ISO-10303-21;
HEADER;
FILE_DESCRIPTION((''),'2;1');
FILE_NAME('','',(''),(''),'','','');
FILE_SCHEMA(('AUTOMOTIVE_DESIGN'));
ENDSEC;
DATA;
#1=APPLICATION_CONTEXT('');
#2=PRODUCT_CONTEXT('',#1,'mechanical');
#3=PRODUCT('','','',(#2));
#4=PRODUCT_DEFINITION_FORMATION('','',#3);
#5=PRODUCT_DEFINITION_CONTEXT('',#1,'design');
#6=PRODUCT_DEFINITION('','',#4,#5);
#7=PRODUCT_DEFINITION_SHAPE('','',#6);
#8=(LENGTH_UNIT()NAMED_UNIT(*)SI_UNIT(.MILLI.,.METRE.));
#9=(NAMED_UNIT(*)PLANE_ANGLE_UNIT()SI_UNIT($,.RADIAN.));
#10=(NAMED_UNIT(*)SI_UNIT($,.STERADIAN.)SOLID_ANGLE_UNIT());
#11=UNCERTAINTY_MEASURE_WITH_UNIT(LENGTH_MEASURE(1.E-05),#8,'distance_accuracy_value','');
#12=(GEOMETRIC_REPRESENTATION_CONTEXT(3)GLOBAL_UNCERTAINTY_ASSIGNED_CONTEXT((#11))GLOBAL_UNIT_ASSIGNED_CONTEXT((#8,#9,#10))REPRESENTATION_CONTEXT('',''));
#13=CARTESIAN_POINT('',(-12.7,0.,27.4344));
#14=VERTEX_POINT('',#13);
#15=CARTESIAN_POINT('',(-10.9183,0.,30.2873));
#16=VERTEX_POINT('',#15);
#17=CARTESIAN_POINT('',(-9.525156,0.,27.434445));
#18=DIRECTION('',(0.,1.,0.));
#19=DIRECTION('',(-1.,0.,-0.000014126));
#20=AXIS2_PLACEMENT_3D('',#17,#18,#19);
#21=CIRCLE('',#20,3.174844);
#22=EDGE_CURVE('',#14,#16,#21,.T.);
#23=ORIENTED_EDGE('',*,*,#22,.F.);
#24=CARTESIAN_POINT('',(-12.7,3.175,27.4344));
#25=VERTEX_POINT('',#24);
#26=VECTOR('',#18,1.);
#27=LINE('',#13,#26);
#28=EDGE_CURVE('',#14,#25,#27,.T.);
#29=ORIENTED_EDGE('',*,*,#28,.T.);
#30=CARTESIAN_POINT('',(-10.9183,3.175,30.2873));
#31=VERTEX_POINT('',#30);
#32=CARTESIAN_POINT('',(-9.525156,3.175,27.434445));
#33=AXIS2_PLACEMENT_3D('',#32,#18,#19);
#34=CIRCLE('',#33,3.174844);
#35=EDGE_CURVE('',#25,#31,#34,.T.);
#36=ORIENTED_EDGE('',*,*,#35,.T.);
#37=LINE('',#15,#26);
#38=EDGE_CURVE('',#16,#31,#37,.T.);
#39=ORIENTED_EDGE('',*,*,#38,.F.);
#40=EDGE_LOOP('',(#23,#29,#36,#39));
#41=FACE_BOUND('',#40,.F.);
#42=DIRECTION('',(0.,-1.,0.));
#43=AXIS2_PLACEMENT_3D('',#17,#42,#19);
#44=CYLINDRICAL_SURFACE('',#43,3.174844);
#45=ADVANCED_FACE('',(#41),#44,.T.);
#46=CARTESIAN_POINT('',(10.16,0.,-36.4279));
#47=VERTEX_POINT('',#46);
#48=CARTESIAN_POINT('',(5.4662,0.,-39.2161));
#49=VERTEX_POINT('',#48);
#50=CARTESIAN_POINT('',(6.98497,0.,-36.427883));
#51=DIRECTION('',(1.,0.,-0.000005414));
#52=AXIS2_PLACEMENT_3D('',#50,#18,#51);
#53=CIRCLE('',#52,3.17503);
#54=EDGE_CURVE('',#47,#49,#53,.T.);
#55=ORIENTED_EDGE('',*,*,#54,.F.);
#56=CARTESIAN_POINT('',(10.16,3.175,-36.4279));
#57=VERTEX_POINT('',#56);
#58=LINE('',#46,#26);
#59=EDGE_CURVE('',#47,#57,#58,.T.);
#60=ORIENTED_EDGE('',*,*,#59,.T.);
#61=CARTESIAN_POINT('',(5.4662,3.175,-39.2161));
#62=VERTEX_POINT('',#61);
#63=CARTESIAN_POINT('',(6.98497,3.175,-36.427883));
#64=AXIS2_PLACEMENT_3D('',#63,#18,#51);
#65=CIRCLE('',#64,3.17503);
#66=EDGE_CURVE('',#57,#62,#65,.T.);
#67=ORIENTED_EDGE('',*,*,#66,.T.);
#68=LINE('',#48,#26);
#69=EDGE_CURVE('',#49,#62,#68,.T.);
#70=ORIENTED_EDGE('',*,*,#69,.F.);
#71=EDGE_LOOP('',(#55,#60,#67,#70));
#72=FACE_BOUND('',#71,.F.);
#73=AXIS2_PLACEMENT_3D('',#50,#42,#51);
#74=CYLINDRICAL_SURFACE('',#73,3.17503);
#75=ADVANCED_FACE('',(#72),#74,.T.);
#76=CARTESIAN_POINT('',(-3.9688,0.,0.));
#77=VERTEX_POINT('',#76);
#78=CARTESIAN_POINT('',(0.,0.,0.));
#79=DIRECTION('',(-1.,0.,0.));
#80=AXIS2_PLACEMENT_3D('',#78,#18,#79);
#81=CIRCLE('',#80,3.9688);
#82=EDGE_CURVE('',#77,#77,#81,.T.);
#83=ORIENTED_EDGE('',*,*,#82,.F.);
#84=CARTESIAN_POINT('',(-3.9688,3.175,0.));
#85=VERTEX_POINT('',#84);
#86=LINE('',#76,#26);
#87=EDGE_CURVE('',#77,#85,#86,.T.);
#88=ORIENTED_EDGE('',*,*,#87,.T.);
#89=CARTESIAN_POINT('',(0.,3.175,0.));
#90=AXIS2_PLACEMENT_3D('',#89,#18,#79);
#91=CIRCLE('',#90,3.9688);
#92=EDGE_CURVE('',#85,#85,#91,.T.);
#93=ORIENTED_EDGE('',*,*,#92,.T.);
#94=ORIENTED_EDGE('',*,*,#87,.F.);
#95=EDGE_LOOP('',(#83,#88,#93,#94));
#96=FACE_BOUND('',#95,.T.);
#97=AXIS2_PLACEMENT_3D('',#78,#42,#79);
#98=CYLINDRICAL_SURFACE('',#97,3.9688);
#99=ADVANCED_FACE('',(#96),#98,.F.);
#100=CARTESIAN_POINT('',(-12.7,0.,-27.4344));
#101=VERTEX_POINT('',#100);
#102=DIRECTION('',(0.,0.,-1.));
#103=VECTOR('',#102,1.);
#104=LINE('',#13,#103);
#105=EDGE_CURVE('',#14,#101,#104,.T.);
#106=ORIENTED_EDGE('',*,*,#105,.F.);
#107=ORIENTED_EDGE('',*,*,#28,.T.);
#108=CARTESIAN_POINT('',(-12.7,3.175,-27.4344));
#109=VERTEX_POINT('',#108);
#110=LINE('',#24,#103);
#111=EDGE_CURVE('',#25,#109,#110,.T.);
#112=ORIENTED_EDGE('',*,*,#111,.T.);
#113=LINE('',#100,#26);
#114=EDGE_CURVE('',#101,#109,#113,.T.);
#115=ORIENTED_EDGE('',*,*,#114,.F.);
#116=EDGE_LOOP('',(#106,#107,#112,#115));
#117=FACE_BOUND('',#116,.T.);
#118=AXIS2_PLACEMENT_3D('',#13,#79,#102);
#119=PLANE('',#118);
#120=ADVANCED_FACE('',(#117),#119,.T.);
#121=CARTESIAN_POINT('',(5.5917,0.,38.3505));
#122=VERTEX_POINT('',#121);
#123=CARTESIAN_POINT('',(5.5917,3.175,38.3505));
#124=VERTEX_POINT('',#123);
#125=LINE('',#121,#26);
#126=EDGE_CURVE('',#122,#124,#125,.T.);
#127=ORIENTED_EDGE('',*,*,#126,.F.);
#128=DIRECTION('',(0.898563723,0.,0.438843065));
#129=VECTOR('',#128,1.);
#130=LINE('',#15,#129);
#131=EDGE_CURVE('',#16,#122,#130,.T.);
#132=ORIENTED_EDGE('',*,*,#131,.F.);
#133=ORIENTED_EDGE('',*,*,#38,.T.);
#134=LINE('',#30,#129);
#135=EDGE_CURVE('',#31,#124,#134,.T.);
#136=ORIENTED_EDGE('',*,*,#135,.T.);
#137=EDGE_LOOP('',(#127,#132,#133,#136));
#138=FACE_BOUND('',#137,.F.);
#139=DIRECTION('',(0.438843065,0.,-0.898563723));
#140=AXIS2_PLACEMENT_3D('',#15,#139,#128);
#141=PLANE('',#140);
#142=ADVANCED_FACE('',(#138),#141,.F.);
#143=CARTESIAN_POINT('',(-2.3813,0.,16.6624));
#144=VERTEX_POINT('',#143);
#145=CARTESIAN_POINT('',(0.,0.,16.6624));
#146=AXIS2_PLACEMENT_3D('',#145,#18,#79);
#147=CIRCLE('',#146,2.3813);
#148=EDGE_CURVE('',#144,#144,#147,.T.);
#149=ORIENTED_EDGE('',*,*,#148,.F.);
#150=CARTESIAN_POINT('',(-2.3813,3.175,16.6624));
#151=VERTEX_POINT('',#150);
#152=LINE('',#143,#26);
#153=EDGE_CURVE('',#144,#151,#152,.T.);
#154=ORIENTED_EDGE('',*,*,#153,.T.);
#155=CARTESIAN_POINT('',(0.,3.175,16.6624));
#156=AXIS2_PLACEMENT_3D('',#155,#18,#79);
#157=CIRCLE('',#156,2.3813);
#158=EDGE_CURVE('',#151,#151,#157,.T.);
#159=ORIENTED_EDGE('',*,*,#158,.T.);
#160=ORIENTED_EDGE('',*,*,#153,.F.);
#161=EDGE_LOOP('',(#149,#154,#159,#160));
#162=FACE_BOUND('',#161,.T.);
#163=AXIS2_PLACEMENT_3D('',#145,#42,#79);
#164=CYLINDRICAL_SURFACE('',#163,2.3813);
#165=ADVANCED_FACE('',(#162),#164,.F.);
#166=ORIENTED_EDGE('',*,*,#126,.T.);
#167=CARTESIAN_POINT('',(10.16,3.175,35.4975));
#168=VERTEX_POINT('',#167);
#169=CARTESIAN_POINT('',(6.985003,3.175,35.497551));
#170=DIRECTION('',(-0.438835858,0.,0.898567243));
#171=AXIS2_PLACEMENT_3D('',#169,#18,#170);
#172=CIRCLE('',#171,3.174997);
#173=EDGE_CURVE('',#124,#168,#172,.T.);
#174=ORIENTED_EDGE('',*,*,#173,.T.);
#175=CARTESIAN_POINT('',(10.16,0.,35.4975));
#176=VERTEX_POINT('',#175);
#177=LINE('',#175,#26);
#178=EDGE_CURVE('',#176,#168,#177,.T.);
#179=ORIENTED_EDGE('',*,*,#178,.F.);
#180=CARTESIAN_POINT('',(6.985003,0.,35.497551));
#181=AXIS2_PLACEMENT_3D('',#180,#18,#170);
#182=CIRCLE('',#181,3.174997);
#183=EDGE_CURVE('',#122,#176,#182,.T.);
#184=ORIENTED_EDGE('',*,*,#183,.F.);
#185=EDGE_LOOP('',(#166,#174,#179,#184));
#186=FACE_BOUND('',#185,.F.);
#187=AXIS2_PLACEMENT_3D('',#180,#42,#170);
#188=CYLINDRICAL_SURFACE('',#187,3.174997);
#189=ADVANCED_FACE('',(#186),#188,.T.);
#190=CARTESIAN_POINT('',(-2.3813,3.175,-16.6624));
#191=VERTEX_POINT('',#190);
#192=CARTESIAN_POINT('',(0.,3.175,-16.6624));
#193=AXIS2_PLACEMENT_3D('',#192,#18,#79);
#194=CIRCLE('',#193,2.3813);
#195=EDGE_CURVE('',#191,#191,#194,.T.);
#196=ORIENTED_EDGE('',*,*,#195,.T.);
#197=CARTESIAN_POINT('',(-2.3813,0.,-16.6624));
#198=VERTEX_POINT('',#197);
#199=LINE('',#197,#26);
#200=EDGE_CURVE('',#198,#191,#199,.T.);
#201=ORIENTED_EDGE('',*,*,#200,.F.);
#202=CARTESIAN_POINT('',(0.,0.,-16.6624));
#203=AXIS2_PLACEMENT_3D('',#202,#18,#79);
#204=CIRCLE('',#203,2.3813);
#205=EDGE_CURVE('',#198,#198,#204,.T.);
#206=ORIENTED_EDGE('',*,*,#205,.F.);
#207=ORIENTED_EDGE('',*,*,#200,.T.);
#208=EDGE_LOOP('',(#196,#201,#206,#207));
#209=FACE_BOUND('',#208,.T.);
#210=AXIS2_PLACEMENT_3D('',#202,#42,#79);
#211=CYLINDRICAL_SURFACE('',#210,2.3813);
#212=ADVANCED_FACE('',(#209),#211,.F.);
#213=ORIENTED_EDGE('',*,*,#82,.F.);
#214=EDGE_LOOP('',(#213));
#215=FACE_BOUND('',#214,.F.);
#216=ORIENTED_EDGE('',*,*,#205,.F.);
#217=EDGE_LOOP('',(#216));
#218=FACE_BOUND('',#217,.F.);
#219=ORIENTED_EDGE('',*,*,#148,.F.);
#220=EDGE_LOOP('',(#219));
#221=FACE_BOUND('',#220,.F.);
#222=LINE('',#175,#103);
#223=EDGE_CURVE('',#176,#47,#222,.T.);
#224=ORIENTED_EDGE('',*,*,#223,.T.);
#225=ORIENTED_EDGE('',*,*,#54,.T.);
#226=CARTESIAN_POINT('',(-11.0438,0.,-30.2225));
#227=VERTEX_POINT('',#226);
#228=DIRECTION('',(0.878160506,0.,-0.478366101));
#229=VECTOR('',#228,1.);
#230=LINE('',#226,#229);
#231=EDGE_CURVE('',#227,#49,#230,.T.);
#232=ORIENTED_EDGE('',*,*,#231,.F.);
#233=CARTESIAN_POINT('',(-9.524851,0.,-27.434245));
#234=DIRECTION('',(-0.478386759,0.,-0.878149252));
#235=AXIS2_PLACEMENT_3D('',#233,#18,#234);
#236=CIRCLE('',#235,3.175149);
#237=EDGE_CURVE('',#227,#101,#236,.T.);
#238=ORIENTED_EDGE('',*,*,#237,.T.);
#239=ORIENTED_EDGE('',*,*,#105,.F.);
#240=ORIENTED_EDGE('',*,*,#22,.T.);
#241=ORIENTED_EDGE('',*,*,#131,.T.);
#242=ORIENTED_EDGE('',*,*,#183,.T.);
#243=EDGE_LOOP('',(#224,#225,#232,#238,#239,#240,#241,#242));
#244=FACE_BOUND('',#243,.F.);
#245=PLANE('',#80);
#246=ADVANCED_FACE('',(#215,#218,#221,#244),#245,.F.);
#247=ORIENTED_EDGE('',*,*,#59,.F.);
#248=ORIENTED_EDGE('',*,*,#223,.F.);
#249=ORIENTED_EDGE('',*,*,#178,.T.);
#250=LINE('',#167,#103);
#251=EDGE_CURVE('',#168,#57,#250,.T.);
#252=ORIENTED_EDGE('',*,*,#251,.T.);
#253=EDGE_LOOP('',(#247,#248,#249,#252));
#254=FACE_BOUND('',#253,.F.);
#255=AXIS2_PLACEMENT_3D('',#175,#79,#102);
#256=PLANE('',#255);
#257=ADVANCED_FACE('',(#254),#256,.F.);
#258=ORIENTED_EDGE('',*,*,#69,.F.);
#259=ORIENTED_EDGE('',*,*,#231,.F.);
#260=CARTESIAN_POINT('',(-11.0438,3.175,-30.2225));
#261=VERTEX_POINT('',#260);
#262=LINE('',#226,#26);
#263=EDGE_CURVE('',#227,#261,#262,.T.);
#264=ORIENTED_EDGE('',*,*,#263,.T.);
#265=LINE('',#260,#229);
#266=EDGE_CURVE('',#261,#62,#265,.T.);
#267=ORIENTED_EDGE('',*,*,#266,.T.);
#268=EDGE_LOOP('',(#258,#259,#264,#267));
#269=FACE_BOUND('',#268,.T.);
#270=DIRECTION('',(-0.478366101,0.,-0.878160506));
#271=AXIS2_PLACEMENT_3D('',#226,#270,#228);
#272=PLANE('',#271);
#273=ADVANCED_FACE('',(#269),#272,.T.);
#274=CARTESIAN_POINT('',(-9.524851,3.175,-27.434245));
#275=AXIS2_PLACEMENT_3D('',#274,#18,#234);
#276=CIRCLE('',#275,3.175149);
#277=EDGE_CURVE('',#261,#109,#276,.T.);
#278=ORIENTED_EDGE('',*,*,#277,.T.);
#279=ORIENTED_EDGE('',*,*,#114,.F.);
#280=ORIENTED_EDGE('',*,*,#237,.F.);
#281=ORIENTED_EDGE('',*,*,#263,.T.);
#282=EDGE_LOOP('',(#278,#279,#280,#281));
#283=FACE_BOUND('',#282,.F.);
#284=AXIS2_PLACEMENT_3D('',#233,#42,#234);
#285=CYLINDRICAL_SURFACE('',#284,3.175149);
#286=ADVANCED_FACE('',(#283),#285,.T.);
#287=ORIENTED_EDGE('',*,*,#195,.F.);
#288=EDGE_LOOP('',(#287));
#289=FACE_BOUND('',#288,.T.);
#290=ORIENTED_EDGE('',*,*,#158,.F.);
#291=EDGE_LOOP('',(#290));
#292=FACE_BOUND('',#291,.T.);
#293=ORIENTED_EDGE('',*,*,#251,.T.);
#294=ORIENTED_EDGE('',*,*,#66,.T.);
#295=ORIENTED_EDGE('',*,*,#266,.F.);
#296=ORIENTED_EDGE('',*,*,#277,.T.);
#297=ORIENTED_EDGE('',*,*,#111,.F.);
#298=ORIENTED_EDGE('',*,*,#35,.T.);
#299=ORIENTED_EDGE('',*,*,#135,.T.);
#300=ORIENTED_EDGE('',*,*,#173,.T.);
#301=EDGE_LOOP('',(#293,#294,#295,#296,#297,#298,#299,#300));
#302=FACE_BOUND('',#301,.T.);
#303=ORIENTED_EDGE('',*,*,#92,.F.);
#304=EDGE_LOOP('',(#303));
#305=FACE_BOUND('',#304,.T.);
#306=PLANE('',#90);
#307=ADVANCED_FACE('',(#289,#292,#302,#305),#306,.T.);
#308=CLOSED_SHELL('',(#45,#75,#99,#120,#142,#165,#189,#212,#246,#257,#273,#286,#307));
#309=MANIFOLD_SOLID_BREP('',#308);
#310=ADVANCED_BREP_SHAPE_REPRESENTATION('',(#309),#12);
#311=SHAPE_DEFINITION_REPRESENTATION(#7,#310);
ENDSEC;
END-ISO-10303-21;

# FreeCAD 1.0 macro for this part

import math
import FreeCAD as App
import Part
import Sketcher
Q = App.Units.Quantity

doc = App.newDocument("Part")
body = doc.addObject("PartDesign::Body", "Body")

sketch1 = body.newObject("Sketcher::SketchObject", "Sketch")
sketch1.AttachmentSupport = (doc.getObject("XZ_Plane"), [""])
sketch1.MapMode = "FlatFace"
sketch1.addGeometry([
    Part.LineSegment(App.Vector(-12.7, -27.4344, 0), App.Vector(-12.7, 27.4344, 0)),
    Part.ArcOfCircle(Part.Circle(App.Vector(-9.525, 27.4344, 0), App.Vector(0, 0, 1), 3.175), math.radians(116.029969), math.radians(180)),
    Part.LineSegment(App.Vector(-10.9183, 30.2873, 0), App.Vector(5.5917, 38.3505, 0)),
    Part.ArcOfCircle(Part.Circle(App.Vector(6.985, 35.4975, 0), App.Vector(0, 0, 1), 3.175042), math.radians(0), math.radians(116.029177)),
    Part.LineSegment(App.Vector(10.16, 35.4975, 0), App.Vector(10.16, -36.4279, 0)),
    Part.ArcOfCircle(Part.Circle(App.Vector(6.985, -36.4279, 0), App.Vector(0, 0, 1), 3.175), math.radians(-118.578199), math.radians(0)),
    Part.LineSegment(App.Vector(5.4662, -39.2161, 0), App.Vector(-11.0438, -30.2225, 0)),
    Part.ArcOfCircle(Part.Circle(App.Vector(-9.525, -27.4344, 0), App.Vector(0, 0, 1), 3.174942), math.radians(180), math.radians(241.420938)),
    Part.Circle(App.Vector(0, -16.6624, 0), App.Vector(0, 0, 1), 2.3813),
    Part.Circle(App.Vector(0, 0, 0), App.Vector(0, 0, 1), 3.9688),
    Part.Circle(App.Vector(0, 16.6624, 0), App.Vector(0, 0, 1), 2.3813),
], False)
sketch1.addConstraint([
    Sketcher.Constraint("Tangent", 0, 2, 1, 2),
    Sketcher.Constraint("Tangent", 1, 1, 2, 1),
    Sketcher.Constraint("Tangent", 2, 2, 3, 2),
    Sketcher.Constraint("Tangent", 3, 1, 4, 1),
    Sketcher.Constraint("Tangent", 4, 2, 5, 2),
    Sketcher.Constraint("Tangent", 5, 1, 6, 1),
    Sketcher.Constraint("Tangent", 6, 2, 7, 2),
    Sketcher.Constraint("Tangent", 7, 1, 0, 1),
    Sketcher.Constraint("Vertical", 0),
    Sketcher.Constraint("Vertical", 4),
    Sketcher.Constraint("Coincident", 9, 3, -1, 1),
    Sketcher.Constraint("Equal", 1, 3),
    Sketcher.Constraint("Equal", 3, 5),
    Sketcher.Constraint("Equal", 5, 7),
    Sketcher.Constraint("Equal", 8, 10),
    Sketcher.Constraint("Symmetric", 8, 3, 10, 3, -1, 1),
    Sketcher.Constraint("PointOnObject", 8, 3, -2),
    Sketcher.Constraint("Diameter", 8, Q("0.1875 in")),
    Sketcher.Constraint("Diameter", 9, Q("0.3125 in")),
    Sketcher.Constraint("Radius", 1, Q("0.125 in")),
    Sketcher.Constraint("DistanceX", 0, 2, -1, 1, Q("0.5 in")),
    Sketcher.Constraint("DistanceY", 8, 3, -1, 1, Q("0.656 in")),
    Sketcher.Constraint("DistanceX", -1, 1, 3, 1, Q("0.4 in")),
    Sketcher.Constraint("Angle", 2, Q("26.03 deg")),
    Sketcher.Constraint("DistanceY", 0, 1, 0, 2, Q("2.1602 in")),
    Sketcher.Constraint("DistanceY", 4, 2, 4, 1, Q("2.8317 in")),
    Sketcher.Constraint("DistanceY", -1, 1, 1, 3, Q("1.0801 in")),
])
pad1 = body.newObject("PartDesign::Pad", "Pad")
pad1.Profile = sketch1
pad1.Length = Q("0.125 in")
pad1.Reversed = True

doc.recompute()
